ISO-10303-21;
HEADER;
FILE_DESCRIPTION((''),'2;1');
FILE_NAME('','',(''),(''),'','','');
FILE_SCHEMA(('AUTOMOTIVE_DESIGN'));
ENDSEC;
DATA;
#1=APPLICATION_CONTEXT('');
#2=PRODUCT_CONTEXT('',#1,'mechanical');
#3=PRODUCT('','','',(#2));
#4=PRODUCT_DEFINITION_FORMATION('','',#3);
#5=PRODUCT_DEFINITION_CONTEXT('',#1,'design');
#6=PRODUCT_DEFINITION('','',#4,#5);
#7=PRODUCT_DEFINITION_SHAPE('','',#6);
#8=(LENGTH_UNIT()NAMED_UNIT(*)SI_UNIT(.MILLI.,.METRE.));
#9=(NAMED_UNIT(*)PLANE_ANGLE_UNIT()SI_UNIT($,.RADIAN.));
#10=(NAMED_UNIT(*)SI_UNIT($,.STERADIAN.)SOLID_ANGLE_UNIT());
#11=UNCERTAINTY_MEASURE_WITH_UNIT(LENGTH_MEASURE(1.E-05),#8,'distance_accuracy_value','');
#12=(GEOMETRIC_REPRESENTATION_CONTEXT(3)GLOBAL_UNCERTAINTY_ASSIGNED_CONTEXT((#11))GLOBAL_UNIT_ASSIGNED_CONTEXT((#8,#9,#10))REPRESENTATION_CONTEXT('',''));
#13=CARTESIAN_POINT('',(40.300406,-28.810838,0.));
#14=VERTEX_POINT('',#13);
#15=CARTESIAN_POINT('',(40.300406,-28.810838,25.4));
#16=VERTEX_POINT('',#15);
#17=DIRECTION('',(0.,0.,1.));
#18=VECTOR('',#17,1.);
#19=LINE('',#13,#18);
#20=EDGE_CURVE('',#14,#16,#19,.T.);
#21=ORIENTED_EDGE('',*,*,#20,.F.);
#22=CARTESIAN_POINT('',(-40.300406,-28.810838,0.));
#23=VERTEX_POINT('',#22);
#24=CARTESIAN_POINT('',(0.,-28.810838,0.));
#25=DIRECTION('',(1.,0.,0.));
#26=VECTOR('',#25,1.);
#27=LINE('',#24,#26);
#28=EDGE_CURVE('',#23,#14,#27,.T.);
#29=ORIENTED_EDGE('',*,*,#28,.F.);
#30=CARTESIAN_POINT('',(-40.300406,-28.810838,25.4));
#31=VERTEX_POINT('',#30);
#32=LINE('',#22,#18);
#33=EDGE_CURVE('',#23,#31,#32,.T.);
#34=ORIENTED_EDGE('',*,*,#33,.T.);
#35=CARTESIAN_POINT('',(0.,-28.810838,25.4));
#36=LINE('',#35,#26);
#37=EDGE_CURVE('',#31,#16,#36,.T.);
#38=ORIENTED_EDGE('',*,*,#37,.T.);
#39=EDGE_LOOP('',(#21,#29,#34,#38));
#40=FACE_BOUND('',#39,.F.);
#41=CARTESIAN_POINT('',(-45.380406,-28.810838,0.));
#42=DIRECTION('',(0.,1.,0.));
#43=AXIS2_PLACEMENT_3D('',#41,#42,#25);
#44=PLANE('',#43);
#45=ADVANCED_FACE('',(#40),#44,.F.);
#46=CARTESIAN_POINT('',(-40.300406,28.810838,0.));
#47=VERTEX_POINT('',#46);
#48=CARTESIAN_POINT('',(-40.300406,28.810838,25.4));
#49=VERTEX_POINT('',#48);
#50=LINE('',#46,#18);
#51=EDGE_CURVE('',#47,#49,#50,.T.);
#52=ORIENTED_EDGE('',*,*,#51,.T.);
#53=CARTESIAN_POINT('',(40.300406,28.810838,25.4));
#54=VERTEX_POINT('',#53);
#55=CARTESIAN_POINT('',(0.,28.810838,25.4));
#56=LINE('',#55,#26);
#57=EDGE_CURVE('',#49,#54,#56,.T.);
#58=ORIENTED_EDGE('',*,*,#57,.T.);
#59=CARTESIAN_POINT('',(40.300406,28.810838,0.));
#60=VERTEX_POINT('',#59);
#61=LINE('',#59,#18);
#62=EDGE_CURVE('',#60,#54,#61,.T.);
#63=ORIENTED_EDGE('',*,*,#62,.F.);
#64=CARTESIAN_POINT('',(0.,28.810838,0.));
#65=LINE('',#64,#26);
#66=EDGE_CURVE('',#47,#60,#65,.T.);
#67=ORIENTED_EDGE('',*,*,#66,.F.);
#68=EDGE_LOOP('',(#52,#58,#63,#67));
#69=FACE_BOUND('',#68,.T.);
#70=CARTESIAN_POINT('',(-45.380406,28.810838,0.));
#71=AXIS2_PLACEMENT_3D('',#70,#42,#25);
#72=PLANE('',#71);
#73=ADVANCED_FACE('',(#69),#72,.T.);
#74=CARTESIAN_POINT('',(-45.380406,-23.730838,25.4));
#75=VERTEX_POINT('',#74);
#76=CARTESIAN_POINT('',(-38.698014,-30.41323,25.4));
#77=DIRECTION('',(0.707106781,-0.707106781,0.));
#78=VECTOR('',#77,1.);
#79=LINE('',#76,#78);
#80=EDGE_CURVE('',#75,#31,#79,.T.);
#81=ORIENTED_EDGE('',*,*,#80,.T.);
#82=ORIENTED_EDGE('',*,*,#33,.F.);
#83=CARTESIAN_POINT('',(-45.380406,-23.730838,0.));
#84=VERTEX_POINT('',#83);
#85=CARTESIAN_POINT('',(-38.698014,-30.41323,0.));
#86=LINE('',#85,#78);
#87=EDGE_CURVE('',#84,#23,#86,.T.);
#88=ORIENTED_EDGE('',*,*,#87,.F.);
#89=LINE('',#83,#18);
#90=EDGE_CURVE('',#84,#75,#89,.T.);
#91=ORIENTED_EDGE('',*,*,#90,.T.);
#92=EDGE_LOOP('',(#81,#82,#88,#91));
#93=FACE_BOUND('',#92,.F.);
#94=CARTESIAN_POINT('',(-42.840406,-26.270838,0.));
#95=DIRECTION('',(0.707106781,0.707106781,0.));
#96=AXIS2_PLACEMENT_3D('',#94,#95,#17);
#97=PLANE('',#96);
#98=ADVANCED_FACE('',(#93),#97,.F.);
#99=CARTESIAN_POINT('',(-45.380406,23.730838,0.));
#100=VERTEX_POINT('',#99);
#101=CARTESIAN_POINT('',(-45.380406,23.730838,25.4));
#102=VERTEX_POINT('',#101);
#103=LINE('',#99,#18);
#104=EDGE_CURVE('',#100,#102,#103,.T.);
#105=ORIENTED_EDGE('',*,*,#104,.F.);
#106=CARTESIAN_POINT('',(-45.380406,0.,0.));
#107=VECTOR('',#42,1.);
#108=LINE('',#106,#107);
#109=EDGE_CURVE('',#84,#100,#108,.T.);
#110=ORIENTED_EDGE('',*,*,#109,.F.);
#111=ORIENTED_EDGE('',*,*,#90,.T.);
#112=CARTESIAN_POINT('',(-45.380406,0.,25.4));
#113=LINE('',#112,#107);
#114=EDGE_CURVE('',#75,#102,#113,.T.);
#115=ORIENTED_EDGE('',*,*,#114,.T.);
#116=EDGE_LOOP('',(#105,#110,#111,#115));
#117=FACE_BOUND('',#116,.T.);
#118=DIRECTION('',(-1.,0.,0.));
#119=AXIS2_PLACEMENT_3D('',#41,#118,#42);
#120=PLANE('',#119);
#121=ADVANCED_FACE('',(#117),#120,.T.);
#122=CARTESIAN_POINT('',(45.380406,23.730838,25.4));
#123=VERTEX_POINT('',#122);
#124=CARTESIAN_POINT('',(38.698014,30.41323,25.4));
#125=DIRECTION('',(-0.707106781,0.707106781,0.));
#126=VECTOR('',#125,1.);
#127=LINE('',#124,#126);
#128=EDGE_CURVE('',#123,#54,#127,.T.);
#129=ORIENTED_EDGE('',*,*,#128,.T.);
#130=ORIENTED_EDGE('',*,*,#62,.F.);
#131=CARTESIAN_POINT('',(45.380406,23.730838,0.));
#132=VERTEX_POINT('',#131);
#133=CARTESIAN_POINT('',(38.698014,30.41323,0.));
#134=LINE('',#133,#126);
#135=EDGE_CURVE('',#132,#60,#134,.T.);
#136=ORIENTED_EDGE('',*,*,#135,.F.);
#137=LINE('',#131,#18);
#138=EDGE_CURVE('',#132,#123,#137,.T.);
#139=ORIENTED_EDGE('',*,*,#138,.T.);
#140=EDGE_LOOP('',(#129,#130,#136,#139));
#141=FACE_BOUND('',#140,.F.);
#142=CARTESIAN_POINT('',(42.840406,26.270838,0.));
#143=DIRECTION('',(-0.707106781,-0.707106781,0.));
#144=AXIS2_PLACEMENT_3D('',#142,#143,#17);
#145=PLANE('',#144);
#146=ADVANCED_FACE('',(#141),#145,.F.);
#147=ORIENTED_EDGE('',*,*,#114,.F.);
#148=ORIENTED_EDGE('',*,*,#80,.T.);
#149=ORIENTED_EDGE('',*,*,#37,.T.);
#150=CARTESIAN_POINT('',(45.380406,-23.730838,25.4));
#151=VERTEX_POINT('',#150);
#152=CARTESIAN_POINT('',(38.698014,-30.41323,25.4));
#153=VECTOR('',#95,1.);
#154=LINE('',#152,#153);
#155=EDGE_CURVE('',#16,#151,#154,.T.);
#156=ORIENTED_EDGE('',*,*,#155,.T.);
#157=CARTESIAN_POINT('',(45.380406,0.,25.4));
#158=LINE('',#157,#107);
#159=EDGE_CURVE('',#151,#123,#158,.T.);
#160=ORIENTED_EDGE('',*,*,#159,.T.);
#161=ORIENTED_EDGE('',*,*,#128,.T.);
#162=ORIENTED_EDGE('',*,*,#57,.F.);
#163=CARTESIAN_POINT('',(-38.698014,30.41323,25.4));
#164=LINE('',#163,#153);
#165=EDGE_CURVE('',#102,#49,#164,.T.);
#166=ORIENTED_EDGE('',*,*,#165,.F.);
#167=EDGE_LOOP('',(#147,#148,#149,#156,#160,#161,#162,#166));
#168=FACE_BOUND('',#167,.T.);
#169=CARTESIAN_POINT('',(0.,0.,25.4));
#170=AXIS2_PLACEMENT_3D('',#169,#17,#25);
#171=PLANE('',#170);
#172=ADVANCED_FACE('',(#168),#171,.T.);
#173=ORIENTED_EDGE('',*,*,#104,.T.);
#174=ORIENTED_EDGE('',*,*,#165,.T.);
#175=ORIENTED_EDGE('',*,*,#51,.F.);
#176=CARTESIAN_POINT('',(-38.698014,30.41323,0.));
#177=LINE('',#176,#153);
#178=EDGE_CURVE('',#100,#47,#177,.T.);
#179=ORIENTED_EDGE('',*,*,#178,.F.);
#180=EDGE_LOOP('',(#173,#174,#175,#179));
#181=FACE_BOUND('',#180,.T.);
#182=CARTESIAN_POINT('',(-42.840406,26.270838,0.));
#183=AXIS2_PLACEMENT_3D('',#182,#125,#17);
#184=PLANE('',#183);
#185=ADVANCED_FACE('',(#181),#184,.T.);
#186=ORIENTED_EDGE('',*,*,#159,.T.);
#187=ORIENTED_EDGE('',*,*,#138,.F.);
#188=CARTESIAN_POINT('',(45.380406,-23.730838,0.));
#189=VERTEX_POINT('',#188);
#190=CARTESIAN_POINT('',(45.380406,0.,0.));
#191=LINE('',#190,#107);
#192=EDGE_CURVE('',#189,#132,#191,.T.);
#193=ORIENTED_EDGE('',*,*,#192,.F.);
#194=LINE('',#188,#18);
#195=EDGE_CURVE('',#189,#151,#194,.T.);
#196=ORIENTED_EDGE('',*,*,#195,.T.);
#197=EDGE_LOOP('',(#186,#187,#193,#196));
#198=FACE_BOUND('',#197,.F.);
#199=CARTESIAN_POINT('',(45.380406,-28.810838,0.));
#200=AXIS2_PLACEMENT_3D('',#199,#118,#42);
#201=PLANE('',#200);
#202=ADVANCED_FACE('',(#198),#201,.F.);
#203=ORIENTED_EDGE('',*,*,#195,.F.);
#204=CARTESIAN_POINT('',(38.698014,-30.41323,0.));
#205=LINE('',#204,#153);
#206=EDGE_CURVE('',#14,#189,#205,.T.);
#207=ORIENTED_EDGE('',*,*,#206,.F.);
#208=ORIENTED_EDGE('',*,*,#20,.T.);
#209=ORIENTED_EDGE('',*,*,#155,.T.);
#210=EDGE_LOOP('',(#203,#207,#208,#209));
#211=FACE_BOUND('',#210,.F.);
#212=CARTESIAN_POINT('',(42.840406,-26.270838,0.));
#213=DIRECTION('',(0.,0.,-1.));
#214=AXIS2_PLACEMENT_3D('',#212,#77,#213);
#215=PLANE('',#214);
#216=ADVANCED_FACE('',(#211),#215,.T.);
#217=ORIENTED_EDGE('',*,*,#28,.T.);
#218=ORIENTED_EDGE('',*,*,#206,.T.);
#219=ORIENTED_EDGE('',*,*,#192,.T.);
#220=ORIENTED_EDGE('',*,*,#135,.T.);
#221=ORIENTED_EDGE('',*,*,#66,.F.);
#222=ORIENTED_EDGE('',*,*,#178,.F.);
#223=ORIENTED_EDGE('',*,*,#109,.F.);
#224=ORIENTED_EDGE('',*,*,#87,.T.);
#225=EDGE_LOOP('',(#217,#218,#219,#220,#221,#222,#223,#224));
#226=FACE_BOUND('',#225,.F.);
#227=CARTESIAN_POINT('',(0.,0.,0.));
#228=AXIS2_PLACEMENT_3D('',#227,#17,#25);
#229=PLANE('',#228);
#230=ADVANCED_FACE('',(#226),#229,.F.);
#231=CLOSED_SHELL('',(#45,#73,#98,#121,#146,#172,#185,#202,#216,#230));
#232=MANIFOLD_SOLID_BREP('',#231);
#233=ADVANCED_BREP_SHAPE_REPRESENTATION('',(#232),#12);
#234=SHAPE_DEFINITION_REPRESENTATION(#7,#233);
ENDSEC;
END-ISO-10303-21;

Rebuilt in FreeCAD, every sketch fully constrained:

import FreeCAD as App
import Part
import Sketcher
from FreeCAD import Vector


def edges_at(feature, points):
    """Names of the edges that pass closest to the given points."""
    edges = feature.Shape.Edges
    near = lambda p: min(range(len(edges)), key=lambda i: edges[i].distToShape(Part.Vertex(*p))[0])
    return sorted({f"Edge{near(p) + 1}" for p in points})


def add_polygon(sketch, points):
    """Adds a closed chain of lines whose ends are joined by coincident constraints."""
    first, n = sketch.GeometryCount, len(points)
    for a, b in zip(points, points[1:] + points[:1]):
        sketch.addGeometry(Part.LineSegment(App.Vector(*a, 0), App.Vector(*b, 0)), False)
    for i in range(n):
        sketch.addConstraint(Sketcher.Constraint("Coincident", first + i, 2, first + (i + 1) % n, 1))

doc = App.newDocument("Part")
params = doc.addObject("Spreadsheet::Sheet", "Params")
for row, (alias, value) in enumerate([
    ("pad1_length", "1 in"),
    ("chamfer_size", "0.2 in"),
], start=1):
    params.set(f"A{row}", alias)
    params.set(f"B{row}", "=" + value)
    params.setAlias(f"B{row}", alias)

body = doc.addObject("PartDesign::Body", "Body")

sketch1 = body.newObject("Sketcher::SketchObject", "Sketch")
sketch1.AttachmentSupport = (doc.getObject("XY_Plane"), [""])
sketch1.MapMode = "FlatFace"
add_polygon(sketch1, [(-45, 29), (-45, -29), (45, -29), (45, 29)])
sketch1.addConstraint([
    Sketcher.Constraint("Vertical", 0),
    Sketcher.Constraint("Horizontal", 1),
    Sketcher.Constraint("Vertical", 2),
    Sketcher.Constraint("Horizontal", 3),
    Sketcher.Constraint("Symmetric", 0, 2, 2, 2, -1, 1),
    Sketcher.Constraint("DistanceX", 1, 1, 1, 2, 90.760812),
    Sketcher.Constraint("DistanceY", 0, 2, 0, 1, 57.621676),
])
pad1 = body.newObject("PartDesign::Pad", "Pad")
pad1.Profile = sketch1
pad1.setExpression("Length", "Params.pad1_length")
doc.recompute()

chamfer = body.newObject("PartDesign::Chamfer", "Chamfer")
chamfer.Base = (pad1, edges_at(pad1, [
    (45.38, -28.811, 12.7),
    (45.38, 28.811, 12.7),
    (-45.38, -28.811, 12.7),
    (-45.38, 28.811, 12.7),
]))
chamfer.setExpression("Size", "Params.chamfer_size")

doc.recompute()
